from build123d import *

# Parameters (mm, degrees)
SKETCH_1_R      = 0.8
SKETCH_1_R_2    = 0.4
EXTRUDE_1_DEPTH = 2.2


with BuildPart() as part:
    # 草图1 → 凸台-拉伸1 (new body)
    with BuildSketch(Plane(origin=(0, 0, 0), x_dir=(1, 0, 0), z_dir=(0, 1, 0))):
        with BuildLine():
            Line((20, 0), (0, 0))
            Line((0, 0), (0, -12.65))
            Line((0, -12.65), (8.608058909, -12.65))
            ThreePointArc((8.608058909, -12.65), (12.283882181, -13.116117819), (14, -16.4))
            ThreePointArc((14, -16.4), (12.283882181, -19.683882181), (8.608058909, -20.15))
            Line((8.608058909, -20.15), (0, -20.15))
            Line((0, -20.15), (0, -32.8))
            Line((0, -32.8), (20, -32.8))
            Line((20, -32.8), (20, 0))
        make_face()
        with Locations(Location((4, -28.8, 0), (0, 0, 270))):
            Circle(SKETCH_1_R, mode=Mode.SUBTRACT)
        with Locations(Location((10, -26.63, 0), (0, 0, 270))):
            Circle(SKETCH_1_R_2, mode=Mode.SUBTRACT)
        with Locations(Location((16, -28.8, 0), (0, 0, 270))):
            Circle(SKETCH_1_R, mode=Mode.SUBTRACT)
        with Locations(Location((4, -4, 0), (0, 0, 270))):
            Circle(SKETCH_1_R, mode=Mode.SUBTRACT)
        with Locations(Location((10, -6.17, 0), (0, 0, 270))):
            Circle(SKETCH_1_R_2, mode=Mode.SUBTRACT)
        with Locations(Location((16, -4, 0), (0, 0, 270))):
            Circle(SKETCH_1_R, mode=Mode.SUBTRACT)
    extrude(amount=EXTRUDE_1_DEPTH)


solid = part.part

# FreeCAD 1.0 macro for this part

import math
import FreeCAD as App
import Part
import Sketcher
from FreeCAD import Vector

doc = App.newDocument("Part")
body = doc.addObject("PartDesign::Body", "Body")

# Sketch on XZ plane
sketch1 = body.newObject("Sketcher::SketchObject", "Sketch")
sketch1.AttachmentSupport = (doc.getObject("XZ_Plane"), [""])
sketch1.MapMode = "FlatFace"
sketch1.addGeometry([
    Part.LineSegment(Vector(20, 0, 0), Vector(0, 0, 0)),  # 0
    Part.LineSegment(Vector(0, 0, 0), Vector(0, 12.65, 0)),  # 1
    Part.LineSegment(Vector(0, 12.65, 0), Vector(8.61, 12.65, 0)),  # 2
    Part.ArcOfCircle(Part.Circle(Vector(10, 16.4, 0), Vector(0, 0, 1), 4), math.radians(-110), math.radians(0)),  # 3
    Part.ArcOfCircle(Part.Circle(Vector(10, 16.4, 0), Vector(0, 0, 1), 4), math.radians(0), math.radians(110)),  # 4
    Part.LineSegment(Vector(8.61, 20.15, 0), Vector(0, 20.15, 0)),  # 5
    Part.LineSegment(Vector(0, 20.15, 0), Vector(0, 32.8, 0)),  # 6
    Part.LineSegment(Vector(0, 32.8, 0), Vector(20, 32.8, 0)),  # 7
    Part.LineSegment(Vector(20, 32.8, 0), Vector(20, 0, 0)),  # 8
    Part.Circle(Vector(4, 28.8, 0), Vector(0, 0, 1), 0.8),  # 9
    Part.Circle(Vector(10, 26.63, 0), Vector(0, 0, 1), 0.4),  # 10
    Part.Circle(Vector(16, 28.8, 0), Vector(0, 0, 1), 0.8),  # 11
    Part.Circle(Vector(4, 4, 0), Vector(0, 0, 1), 0.8),  # 12
    Part.Circle(Vector(10, 6.17, 0), Vector(0, 0, 1), 0.4),  # 13
    Part.Circle(Vector(16, 4, 0), Vector(0, 0, 1), 0.8),  # 14
], False)
sketch1.addConstraint([
    Sketcher.Constraint("Coincident", 0, 2, 1, 1),
    Sketcher.Constraint("Coincident", 1, 2, 2, 1),
    Sketcher.Constraint("Coincident", 2, 2, 3, 1),
    Sketcher.Constraint("Tangent", 3, 2, 4, 1),
    Sketcher.Constraint("Coincident", 4, 2, 5, 1),
    Sketcher.Constraint("Coincident", 5, 2, 6, 1),
    Sketcher.Constraint("Coincident", 6, 2, 7, 1),
    Sketcher.Constraint("Coincident", 7, 2, 8, 1),
    Sketcher.Constraint("Coincident", 8, 2, 0, 1),
    Sketcher.Constraint("Horizontal", 0),
    Sketcher.Constraint("Vertical", 1),
    Sketcher.Constraint("Horizontal", 2),
    Sketcher.Constraint("Horizontal", 5),
    Sketcher.Constraint("Vertical", 6),
    Sketcher.Constraint("Horizontal", 7),
    Sketcher.Constraint("Vertical", 8),
    Sketcher.Constraint("Coincident", 0, 2, -1, 1),
    Sketcher.Constraint("Equal", 3, 4),
    Sketcher.Constraint("Equal", 9, 11),
    Sketcher.Constraint("Equal", 11, 12),
    Sketcher.Constraint("Equal", 10, 13),
    Sketcher.Constraint("Equal", 12, 14),
    Sketcher.Constraint("PointOnObject", 5, 2, -2),
    Sketcher.Constraint("Horizontal", 9, 3, 11, 3),
    Sketcher.Constraint("Horizontal", 12, 3, 14, 3),
    Sketcher.Constraint("Horizontal", 4, 3, 3, 2),
    Sketcher.Constraint("Vertical", 4, 3, 10, 3),
    Sketcher.Constraint("Vertical", 9, 3, 12, 3),
    Sketcher.Constraint("Vertical", 10, 3, 13, 3),
    Sketcher.Constraint("Vertical", 11, 3, 14, 3),
    Sketcher.Constraint("Vertical", 2, 2, 4, 2),
    Sketcher.Constraint("Equal", 1, 6),
    Sketcher.Constraint("Radius", 3, 4.0),
    Sketcher.Constraint("Diameter", 9, 1.6),
    Sketcher.Constraint("Diameter", 10, 0.8),
    Sketcher.Constraint("DistanceX", 0, 2, 0, 1, 20.0),
    Sketcher.Constraint("DistanceY", 8, 2, 8, 1, 32.8),
    Sketcher.Constraint("DistanceX", -1, 1, 3, 3, 10.0),
    Sketcher.Constraint("DistanceX", -1, 1, 9, 3, 4.0),
    Sketcher.Constraint("DistanceX", -1, 1, 11, 3, 16.0),
    Sketcher.Constraint("DistanceY", -1, 1, 12, 3, 4.0),
    Sketcher.Constraint("DistanceY", 9, 3, 6, 2, 4.0),
    Sketcher.Constraint("DistanceY", 1, 1, 1, 2, 12.65),
    Sketcher.Constraint("DistanceY", -1, 1, 10, 3, 26.63),
    Sketcher.Constraint("DistanceY", -1, 1, 13, 3, 6.17),
])
pad1 = body.newObject("PartDesign::Pad", "Pad")
pad1.Profile = sketch1
pad1.Length = 2.2
pad1.Reversed = True

doc.recompute()
